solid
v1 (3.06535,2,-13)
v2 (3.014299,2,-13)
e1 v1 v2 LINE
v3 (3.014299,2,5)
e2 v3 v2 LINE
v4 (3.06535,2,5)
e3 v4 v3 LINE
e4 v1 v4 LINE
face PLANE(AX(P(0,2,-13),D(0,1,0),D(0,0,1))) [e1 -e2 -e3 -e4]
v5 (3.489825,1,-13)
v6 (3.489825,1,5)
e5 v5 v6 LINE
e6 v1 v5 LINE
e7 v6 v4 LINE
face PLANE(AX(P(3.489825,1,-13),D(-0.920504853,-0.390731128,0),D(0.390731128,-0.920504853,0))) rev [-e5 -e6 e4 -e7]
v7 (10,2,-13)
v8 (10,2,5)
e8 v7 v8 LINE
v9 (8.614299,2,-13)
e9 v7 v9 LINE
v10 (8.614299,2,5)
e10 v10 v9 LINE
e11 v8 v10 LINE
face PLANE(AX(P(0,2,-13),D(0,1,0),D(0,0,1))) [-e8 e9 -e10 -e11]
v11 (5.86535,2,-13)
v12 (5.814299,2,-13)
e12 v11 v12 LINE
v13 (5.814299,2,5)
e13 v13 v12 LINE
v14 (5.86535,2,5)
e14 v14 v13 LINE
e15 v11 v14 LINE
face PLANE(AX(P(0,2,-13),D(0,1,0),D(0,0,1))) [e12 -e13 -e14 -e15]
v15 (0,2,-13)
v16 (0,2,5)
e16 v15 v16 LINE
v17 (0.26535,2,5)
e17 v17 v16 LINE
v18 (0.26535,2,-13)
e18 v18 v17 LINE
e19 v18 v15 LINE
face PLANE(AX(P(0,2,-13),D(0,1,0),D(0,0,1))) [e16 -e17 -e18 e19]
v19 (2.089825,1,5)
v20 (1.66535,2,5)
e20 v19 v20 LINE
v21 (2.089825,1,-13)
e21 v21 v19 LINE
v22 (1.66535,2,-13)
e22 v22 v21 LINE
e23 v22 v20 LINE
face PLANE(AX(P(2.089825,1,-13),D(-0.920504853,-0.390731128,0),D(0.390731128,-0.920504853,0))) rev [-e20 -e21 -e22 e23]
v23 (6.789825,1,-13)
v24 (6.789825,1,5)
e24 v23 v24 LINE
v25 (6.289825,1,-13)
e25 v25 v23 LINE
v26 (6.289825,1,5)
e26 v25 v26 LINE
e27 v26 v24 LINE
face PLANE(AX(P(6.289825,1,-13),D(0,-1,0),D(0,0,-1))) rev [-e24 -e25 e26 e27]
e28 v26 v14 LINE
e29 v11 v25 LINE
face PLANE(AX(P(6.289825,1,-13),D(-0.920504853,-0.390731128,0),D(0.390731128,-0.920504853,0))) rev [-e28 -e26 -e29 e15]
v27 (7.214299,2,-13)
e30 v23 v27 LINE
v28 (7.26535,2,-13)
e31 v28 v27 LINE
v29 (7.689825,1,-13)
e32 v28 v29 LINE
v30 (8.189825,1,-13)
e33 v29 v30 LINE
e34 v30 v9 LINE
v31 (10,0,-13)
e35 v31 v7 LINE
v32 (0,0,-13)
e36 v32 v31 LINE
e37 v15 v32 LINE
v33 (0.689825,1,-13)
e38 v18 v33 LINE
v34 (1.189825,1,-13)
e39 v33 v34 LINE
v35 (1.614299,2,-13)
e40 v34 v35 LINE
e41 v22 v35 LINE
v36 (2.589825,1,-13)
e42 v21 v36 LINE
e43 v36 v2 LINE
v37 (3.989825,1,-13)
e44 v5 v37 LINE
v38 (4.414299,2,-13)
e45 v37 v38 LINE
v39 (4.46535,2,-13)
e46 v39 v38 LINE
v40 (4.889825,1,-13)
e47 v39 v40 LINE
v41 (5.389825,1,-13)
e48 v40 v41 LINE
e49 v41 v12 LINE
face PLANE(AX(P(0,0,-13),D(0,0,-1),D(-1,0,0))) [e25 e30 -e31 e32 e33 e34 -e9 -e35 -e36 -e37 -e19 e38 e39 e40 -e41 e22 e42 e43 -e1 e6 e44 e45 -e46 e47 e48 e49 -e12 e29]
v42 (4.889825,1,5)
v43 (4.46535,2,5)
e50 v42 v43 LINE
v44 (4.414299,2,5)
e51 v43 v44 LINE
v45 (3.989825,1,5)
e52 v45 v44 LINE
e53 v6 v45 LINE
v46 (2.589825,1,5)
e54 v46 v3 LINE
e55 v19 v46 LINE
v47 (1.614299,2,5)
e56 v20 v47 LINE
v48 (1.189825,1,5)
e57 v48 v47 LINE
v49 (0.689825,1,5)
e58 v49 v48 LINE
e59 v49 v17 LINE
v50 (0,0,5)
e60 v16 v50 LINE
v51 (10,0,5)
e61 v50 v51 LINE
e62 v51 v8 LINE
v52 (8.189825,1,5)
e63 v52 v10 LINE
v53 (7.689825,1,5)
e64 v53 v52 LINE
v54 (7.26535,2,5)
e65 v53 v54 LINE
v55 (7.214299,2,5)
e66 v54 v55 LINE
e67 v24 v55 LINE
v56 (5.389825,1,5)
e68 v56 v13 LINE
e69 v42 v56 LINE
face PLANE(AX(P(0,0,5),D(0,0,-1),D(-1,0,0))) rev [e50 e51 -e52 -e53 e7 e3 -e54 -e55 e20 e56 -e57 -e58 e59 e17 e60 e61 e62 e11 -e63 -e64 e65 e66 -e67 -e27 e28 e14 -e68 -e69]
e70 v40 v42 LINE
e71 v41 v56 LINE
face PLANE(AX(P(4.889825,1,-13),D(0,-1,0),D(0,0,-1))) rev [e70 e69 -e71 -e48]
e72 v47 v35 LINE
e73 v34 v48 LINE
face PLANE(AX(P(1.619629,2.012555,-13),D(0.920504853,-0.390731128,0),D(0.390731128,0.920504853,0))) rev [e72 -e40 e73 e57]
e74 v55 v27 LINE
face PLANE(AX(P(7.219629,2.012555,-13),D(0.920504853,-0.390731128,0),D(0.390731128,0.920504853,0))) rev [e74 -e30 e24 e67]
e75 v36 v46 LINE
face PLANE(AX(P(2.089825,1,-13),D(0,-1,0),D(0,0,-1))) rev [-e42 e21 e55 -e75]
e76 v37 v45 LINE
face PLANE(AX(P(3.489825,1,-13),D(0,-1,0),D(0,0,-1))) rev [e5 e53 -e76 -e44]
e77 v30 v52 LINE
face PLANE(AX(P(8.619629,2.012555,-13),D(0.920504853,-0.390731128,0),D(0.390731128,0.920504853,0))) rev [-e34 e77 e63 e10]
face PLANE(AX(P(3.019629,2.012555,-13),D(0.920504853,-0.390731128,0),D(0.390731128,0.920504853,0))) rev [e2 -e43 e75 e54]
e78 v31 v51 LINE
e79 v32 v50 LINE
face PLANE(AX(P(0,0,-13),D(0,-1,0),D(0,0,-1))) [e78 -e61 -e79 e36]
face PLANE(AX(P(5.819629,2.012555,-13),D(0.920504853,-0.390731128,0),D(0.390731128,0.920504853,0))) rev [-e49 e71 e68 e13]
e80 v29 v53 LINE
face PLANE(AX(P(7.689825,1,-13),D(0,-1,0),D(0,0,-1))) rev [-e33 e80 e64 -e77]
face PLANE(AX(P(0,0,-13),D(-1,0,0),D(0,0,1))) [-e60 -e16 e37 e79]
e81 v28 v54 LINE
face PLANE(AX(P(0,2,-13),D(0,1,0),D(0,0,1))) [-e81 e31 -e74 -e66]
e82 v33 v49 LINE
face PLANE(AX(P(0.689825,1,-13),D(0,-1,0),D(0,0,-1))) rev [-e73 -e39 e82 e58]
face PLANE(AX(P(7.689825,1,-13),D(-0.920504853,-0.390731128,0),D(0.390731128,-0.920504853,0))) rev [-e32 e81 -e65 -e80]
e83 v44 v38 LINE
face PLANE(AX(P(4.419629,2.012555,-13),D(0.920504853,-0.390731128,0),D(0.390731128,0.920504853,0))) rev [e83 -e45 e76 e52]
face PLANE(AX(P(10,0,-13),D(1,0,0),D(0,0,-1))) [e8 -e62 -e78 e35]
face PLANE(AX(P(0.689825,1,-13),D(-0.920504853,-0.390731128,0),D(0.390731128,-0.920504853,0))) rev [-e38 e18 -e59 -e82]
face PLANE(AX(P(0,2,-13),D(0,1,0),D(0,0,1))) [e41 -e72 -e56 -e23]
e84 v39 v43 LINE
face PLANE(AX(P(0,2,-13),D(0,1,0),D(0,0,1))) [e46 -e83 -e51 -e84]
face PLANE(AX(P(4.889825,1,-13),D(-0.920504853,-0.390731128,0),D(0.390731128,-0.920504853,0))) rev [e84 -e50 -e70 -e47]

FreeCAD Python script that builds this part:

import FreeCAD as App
import Part
import Sketcher
Q = App.Units.Quantity


def add_polygon(sketch, points):
    """Adds a closed chain of lines whose ends are joined by coincident constraints."""
    first, n = sketch.GeometryCount, len(points)
    for a, b in zip(points, points[1:] + points[:1]):
        sketch.addGeometry(Part.LineSegment(App.Vector(*a, 0), App.Vector(*b, 0)), False)
    for i in range(n):
        sketch.addConstraint(Sketcher.Constraint("Coincident", first + i, 2, first + (i + 1) % n, 1))

doc = App.newDocument("Part")
body = doc.addObject("PartDesign::Body", "Body")

# Sketch on XY plane
sketch1 = body.newObject("Sketcher::SketchObject", "Sketch")
sketch1.AttachmentSupport = (doc.getObject("XY_Plane"), [""])
sketch1.MapMode = "FlatFace"
add_polygon(sketch1, [(0, 2), (0, 0), (10, 0), (10, 2)])  # lines 0-3
sketch1.addConstraint([
    Sketcher.Constraint("Vertical", 0),
    Sketcher.Constraint("Horizontal", 1),
    Sketcher.Constraint("Vertical", 2),
    Sketcher.Constraint("Horizontal", 3),
    Sketcher.Constraint("Coincident", 0, 2, -1, 1),
    Sketcher.Constraint("DistanceX", 1, 1, 1, 2, 10.0),
    Sketcher.Constraint("DistanceY", 0, 2, 0, 1, 2.0),
])
pad1 = body.newObject("PartDesign::Pad", "Pad")
pad1.Profile = sketch1
pad1.Type = "TwoLengths"
pad1.Length = 5
pad1.Length2 = 13

# Sketch on XY plane
sketch2 = body.newObject("Sketcher::SketchObject", "Sketch001")
sketch2.AttachmentSupport = (doc.getObject("XY_Plane"), [""])
sketch2.MapMode = "FlatFace"
sketch2.AttachmentOffset = App.Placement(App.Vector(0, 0, 5), App.Rotation())
add_polygon(sketch2, [(0.7, 1), (1.2, 1), (1.6, 2), (0.3, 2)])  # lines 0-3
sketch2.addConstraint([
    Sketcher.Constraint("Horizontal", 0),
    Sketcher.Constraint("Horizontal", 2),
    Sketcher.Constraint("Equal", 1, 3),
    Sketcher.Constraint("Angle", 1, Q("67 deg")),
    Sketcher.Constraint("DistanceX", 0, 1, 0, 2, 0.5),
    Sketcher.Constraint("DistanceY", -1, 1, 0, 2, 1.0),
    Sketcher.Constraint("Distance", 1, 1.1),
    Sketcher.Constraint("DistanceX", -1, 1, 1, 2, 1.619629),
])
pocket1 = body.newObject("PartDesign::Pocket", "Pocket")
pocket1.Profile = sketch2
pocket1.Length = 18
doc.recompute()

linearpattern = body.newObject("PartDesign::LinearPattern", "LinearPattern")
linearpattern.Originals = [pocket1]
linearpattern.Direction = (doc.getObject("X_Axis"), [""])
linearpattern.Mode = "offset"
linearpattern.Offset = 1.4
linearpattern.Occurrences = 6
body.Tip = linearpattern

doc.recompute()
